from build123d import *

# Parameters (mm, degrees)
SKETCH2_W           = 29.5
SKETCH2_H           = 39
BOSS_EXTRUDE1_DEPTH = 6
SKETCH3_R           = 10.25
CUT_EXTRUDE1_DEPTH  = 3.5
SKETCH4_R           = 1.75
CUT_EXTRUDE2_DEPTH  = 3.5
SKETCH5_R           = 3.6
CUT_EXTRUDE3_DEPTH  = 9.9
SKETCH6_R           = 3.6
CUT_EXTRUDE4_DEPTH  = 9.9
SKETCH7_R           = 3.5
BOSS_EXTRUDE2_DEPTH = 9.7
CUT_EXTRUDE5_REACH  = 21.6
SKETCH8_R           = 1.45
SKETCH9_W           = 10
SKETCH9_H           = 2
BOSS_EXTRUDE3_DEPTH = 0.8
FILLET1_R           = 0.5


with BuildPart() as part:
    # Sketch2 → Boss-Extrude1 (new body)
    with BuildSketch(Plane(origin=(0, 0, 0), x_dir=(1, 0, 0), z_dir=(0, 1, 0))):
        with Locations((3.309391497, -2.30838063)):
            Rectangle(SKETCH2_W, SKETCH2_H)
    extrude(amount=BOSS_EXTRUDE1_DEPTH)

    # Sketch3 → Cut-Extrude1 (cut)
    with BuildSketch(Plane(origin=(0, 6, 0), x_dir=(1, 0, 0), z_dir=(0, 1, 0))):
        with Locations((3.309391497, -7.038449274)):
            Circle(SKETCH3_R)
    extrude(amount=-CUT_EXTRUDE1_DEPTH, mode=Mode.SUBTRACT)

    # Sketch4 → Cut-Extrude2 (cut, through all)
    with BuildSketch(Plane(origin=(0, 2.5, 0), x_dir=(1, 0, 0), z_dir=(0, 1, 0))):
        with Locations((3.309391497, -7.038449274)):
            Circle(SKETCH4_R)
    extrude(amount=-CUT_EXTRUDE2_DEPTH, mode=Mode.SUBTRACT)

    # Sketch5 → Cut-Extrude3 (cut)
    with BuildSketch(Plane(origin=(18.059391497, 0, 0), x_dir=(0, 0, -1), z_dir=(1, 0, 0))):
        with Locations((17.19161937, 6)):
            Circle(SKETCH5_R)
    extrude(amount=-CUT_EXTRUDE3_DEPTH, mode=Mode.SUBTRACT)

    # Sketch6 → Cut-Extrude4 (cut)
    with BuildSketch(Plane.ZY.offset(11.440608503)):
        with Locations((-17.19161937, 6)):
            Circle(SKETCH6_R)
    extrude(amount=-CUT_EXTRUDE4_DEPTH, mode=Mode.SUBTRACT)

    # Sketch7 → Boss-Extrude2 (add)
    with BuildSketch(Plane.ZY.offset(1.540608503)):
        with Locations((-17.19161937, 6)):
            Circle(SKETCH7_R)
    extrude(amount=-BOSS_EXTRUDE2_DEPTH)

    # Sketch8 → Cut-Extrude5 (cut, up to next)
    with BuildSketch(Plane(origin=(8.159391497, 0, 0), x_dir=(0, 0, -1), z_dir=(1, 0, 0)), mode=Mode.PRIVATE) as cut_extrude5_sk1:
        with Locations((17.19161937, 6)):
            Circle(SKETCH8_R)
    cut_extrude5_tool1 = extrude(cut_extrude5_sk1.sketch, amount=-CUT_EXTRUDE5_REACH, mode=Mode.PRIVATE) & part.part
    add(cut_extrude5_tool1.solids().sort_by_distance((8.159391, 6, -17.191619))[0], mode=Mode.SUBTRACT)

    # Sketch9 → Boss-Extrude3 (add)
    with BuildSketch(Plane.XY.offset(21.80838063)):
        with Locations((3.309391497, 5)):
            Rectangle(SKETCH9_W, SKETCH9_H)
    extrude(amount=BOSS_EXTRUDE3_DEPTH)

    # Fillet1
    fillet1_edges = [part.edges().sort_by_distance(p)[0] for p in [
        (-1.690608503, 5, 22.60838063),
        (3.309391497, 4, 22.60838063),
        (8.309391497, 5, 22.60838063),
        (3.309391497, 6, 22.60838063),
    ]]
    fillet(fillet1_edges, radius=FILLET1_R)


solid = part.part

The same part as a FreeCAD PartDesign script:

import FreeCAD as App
import Part
import Sketcher


def edges_at(feature, points):
    """Names of the edges that pass closest to the given points."""
    edges = feature.Shape.Edges
    near = lambda p: min(range(len(edges)), key=lambda i: edges[i].distToShape(Part.Vertex(*p))[0])
    return sorted({f"Edge{near(p) + 1}" for p in points})

doc = App.newDocument("Part")
body = doc.addObject("PartDesign::Body", "Body")

# Sketch on XZ plane
sketch1 = body.newObject("Sketcher::SketchObject", "Sketch")
sketch1.AttachmentSupport = (doc.getObject("XZ_Plane"), [""])
sketch1.MapMode = "FlatFace"
sketch1.addGeometry([
    Part.LineSegment(App.Vector(-11, -17, 0), App.Vector(-11, 22, 0)),
    Part.LineSegment(App.Vector(-11, 22, 0), App.Vector(18, 22, 0)),
    Part.LineSegment(App.Vector(18, 22, 0), App.Vector(18, -17, 0)),
    Part.LineSegment(App.Vector(18, -17, 0), App.Vector(-11, -17, 0)),
], False)
sketch1.addConstraint([
    Sketcher.Constraint("Coincident", 0, 2, 1, 1),
    Sketcher.Constraint("Coincident", 1, 2, 2, 1),
    Sketcher.Constraint("Coincident", 2, 2, 3, 1),
    Sketcher.Constraint("Coincident", 3, 2, 0, 1),
    Sketcher.Constraint("Vertical", 0),
    Sketcher.Constraint("Horizontal", 1),
    Sketcher.Constraint("Vertical", 2),
    Sketcher.Constraint("Horizontal", 3),
    Sketcher.Constraint("DistanceY", 0, 1, 0, 2, 39.0),
    Sketcher.Constraint("DistanceX", 1, 1, 1, 2, 29.5),
    Sketcher.Constraint("DistanceX", 0, 2, -1, 1, 11.440609),
    Sketcher.Constraint("DistanceY", -1, 1, 0, 2, 21.808381),
])
pad1 = body.newObject("PartDesign::Pad", "Pad")
pad1.Profile = sketch1
pad1.Length = 6
pad1.Reversed = True

# Sketch on XZ plane
sketch2 = body.newObject("Sketcher::SketchObject", "Sketch001")
sketch2.AttachmentSupport = (doc.getObject("XZ_Plane"), [""])
sketch2.MapMode = "FlatFace"
sketch2.AttachmentOffset = App.Placement(App.Vector(0, 0, -6), App.Rotation())
sketch2.addGeometry(Part.Circle(App.Vector(3, 7, 0), App.Vector(0, 0, 1), 10), False)
sketch2.addConstraint([
    Sketcher.Constraint("Diameter", 0, 20.5),
    Sketcher.Constraint("DistanceX", -1, 1, 0, 3, 3.309391),
    Sketcher.Constraint("DistanceY", -1, 1, 0, 3, 7.038449),
])
pocket1 = body.newObject("PartDesign::Pocket", "Pocket")
pocket1.Profile = sketch2
pocket1.Length = 3.5
pocket1.Reversed = True

# Sketch on XZ plane
sketch3 = body.newObject("Sketcher::SketchObject", "Sketch002")
sketch3.AttachmentSupport = (doc.getObject("XZ_Plane"), [""])
sketch3.MapMode = "FlatFace"
sketch3.AttachmentOffset = App.Placement(App.Vector(0, 0, -2.5), App.Rotation())
sketch3.addGeometry(Part.Circle(App.Vector(3.3, 7, 0), App.Vector(0, 0, 1), 1.8), False)
sketch3.addConstraint([
    Sketcher.Constraint("Diameter", 0, 3.5),
    Sketcher.Constraint("DistanceX", -1, 1, 0, 3, 3.309391),
    Sketcher.Constraint("DistanceY", -1, 1, 0, 3, 7.038449),
])
pocket2 = body.newObject("PartDesign::Pocket", "Pocket001")
pocket2.Profile = sketch3
pocket2.Type = "ThroughAll"
pocket2.Reversed = True

# Sketch on YZ plane
sketch4 = body.newObject("Sketcher::SketchObject", "Sketch003")
sketch4.AttachmentSupport = (doc.getObject("YZ_Plane"), [""])
sketch4.MapMode = "FlatFace"
sketch4.AttachmentOffset = App.Placement(App.Vector(0, 0, 18.059391), App.Rotation())
sketch4.addGeometry(Part.Circle(App.Vector(6, -17.2, 0), App.Vector(0, 0, 1), 3.6), False)
sketch4.addConstraint([
    Sketcher.Constraint("Diameter", 0, 7.2),
    Sketcher.Constraint("DistanceX", -1, 1, 0, 3, 6.0),
    Sketcher.Constraint("DistanceY", 0, 3, -1, 1, 17.191619),
])
pocket3 = body.newObject("PartDesign::Pocket", "Pocket002")
pocket3.Profile = sketch4
pocket3.Length = 9.9

# Sketch on YZ plane
sketch5 = body.newObject("Sketcher::SketchObject", "Sketch004")
sketch5.AttachmentSupport = (doc.getObject("YZ_Plane"), [""])
sketch5.MapMode = "FlatFace"
sketch5.AttachmentOffset = App.Placement(App.Vector(0, 0, -11.440609), App.Rotation())
sketch5.addGeometry(Part.Circle(App.Vector(6, -17.2, 0), App.Vector(0, 0, 1), 3.6), False)
sketch5.addConstraint([
    Sketcher.Constraint("Diameter", 0, 7.2),
    Sketcher.Constraint("DistanceX", -1, 1, 0, 3, 6.0),
    Sketcher.Constraint("DistanceY", 0, 3, -1, 1, 17.191619),
])
pocket4 = body.newObject("PartDesign::Pocket", "Pocket003")
pocket4.Profile = sketch5
pocket4.Length = 9.9
pocket4.Reversed = True

# Sketch on YZ plane
sketch6 = body.newObject("Sketcher::SketchObject", "Sketch005")
sketch6.AttachmentSupport = (doc.getObject("YZ_Plane"), [""])
sketch6.MapMode = "FlatFace"
sketch6.AttachmentOffset = App.Placement(App.Vector(0, 0, -1.540609), App.Rotation())
sketch6.addGeometry(Part.Circle(App.Vector(6, -17.2, 0), App.Vector(0, 0, 1), 3.5), False)
sketch6.addConstraint([
    Sketcher.Constraint("Diameter", 0, 7.0),
    Sketcher.Constraint("DistanceX", -1, 1, 0, 3, 6.0),
    Sketcher.Constraint("DistanceY", 0, 3, -1, 1, 17.191619),
])
pad2 = body.newObject("PartDesign::Pad", "Pad001")
pad2.Profile = sketch6
pad2.Length = 9.7

# Sketch on YZ plane
sketch7 = body.newObject("Sketcher::SketchObject", "Sketch006")
sketch7.AttachmentSupport = (doc.getObject("YZ_Plane"), [""])
sketch7.MapMode = "FlatFace"
sketch7.AttachmentOffset = App.Placement(App.Vector(0, 0, 8.159391), App.Rotation())
sketch7.addGeometry(Part.Circle(App.Vector(6, -17.2, 0), App.Vector(0, 0, 1), 1.4), False)
sketch7.addConstraint([
    Sketcher.Constraint("Diameter", 0, 2.9),
    Sketcher.Constraint("DistanceX", -1, 1, 0, 3, 6.0),
    Sketcher.Constraint("DistanceY", 0, 3, -1, 1, 17.191619),
])
pocket5 = body.newObject("PartDesign::Pocket", "Pocket004")
pocket5.Profile = sketch7
pocket5.Type = "UpToFirst"

# Sketch on XY plane
sketch8 = body.newObject("Sketcher::SketchObject", "Sketch007")
sketch8.AttachmentSupport = (doc.getObject("XY_Plane"), [""])
sketch8.MapMode = "FlatFace"
sketch8.AttachmentOffset = App.Placement(App.Vector(0, 0, 21.808381), App.Rotation())
sketch8.addGeometry([
    Part.LineSegment(App.Vector(-1.7, 6, 0), App.Vector(-1.7, 4, 0)),
    Part.LineSegment(App.Vector(-1.7, 4, 0), App.Vector(8.3, 4, 0)),
    Part.LineSegment(App.Vector(8.3, 4, 0), App.Vector(8.3, 6, 0)),
    Part.LineSegment(App.Vector(8.3, 6, 0), App.Vector(-1.7, 6, 0)),
], False)
sketch8.addConstraint([
    Sketcher.Constraint("Coincident", 0, 2, 1, 1),
    Sketcher.Constraint("Coincident", 1, 2, 2, 1),
    Sketcher.Constraint("Coincident", 2, 2, 3, 1),
    Sketcher.Constraint("Coincident", 3, 2, 0, 1),
    Sketcher.Constraint("Vertical", 0),
    Sketcher.Constraint("Horizontal", 1),
    Sketcher.Constraint("Vertical", 2),
    Sketcher.Constraint("Horizontal", 3),
    Sketcher.Constraint("DistanceX", 1, 1, 1, 2, 10.0),
    Sketcher.Constraint("DistanceY", 0, 2, 0, 1, 2.0),
    Sketcher.Constraint("DistanceY", -1, 1, 0, 2, 4.0),
    Sketcher.Constraint("DistanceX", 0, 2, -1, 1, 1.690609),
])
pad3 = body.newObject("PartDesign::Pad", "Pad002")
pad3.Profile = sketch8
pad3.Length = 0.8
doc.recompute()

fillet = body.newObject("PartDesign::Fillet", "Fillet")
fillet.Base = (pad3, edges_at(pad3, [
    (-1.691, 5, 22.608),
    (3.309, 4, 22.608),
    (8.309, 5, 22.608),
    (3.309, 6, 22.608),
]))
fillet.Radius = 0.5

doc.recompute()
